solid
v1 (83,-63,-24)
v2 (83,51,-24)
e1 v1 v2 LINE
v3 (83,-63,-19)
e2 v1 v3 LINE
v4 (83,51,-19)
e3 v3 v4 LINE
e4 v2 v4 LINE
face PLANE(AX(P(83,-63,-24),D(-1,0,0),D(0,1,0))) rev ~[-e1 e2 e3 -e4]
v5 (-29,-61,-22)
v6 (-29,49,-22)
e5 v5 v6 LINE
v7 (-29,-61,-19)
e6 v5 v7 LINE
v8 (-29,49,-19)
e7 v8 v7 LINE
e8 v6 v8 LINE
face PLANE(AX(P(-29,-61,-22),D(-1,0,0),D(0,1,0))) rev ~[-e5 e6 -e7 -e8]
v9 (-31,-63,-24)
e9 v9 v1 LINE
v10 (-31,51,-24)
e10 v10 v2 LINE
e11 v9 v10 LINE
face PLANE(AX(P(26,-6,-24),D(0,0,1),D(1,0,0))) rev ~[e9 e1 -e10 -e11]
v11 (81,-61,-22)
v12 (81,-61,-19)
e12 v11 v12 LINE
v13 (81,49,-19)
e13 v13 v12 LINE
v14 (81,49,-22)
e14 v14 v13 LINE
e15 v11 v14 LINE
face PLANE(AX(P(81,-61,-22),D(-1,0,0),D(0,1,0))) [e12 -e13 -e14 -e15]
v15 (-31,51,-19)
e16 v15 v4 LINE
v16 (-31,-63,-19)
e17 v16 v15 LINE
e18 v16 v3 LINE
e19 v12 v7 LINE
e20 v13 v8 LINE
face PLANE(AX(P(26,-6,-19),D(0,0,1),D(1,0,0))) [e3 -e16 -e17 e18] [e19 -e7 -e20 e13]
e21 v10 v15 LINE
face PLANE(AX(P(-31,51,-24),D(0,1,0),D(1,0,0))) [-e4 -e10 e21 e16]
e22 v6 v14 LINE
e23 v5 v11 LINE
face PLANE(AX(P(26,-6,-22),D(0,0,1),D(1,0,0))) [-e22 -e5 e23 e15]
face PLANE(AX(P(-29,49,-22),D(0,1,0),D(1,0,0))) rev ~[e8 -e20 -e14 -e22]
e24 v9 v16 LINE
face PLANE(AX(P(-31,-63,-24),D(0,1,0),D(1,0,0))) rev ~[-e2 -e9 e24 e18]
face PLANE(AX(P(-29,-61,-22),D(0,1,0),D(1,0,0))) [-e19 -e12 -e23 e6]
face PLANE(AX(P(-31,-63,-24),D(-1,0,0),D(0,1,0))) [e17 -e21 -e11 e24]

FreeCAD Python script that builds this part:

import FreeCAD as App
import Part
import Sketcher

V = App.Vector
Q = App.Units.Quantity


def add_polygon(sketch, points):
    """Adds a closed chain of lines whose ends are joined by coincident constraints."""
    first, n = sketch.GeometryCount, len(points)
    for a, b in zip(points, points[1:] + points[:1]):
        sketch.addGeometry(Part.LineSegment(App.Vector(*a, 0), App.Vector(*b, 0)), False)
    for i in range(n):
        sketch.addConstraint(Sketcher.Constraint("Coincident", first + i, 2, first + (i + 1) % n, 1))

doc = App.newDocument("Part")
body = doc.addObject("PartDesign::Body", "Body")

sketch1 = body.newObject("Sketcher::SketchObject", "Sketch")
sketch1.AttachmentSupport = (doc.getObject("XY_Plane"), [""])
sketch1.MapMode = "FlatFace"
sketch1.AttachmentOffset = App.Placement(V(0, 0, -22), App.Rotation())
add_polygon(sketch1, [(-29, 49), (-29, -61), (81, -61), (81, 49)])
sketch1.addConstraint([
    Sketcher.Constraint("Vertical", 0),
    Sketcher.Constraint("Horizontal", 1),
    Sketcher.Constraint("Vertical", 2),
    Sketcher.Constraint("Horizontal", 3),
    Sketcher.Constraint("Equal", 3, 0),
    Sketcher.Constraint("DistanceX", 1, 1, 1, 2, Q("110 mm")),
    Sketcher.Constraint("DistanceX", 0, 2, -1, 1, Q("29 mm")),
    Sketcher.Constraint("DistanceY", 0, 2, -1, 1, Q("61 mm")),
])
pad1 = body.newObject("PartDesign::Pad", "Pad")
pad1.Profile = sketch1
pad1.Length = 5
body2 = doc.addObject("PartDesign::Body", "Body001")

sketch2 = body2.newObject("Sketcher::SketchObject", "Sketch001")
sketch2.AttachmentSupport = (doc.getObject("XY_Plane001"), [""])
sketch2.MapMode = "FlatFace"
sketch2.AttachmentOffset = App.Placement(V(0, 0, -24), App.Rotation())
add_polygon(sketch2, [(-31, 51), (-31, -63), (83, -63), (83, 51)])
sketch2.addConstraint([
    Sketcher.Constraint("Vertical", 0),
    Sketcher.Constraint("Horizontal", 1),
    Sketcher.Constraint("Vertical", 2),
    Sketcher.Constraint("Horizontal", 3),
    Sketcher.Constraint("Equal", 3, 0),
    Sketcher.Constraint("DistanceX", 1, 1, 1, 2, Q("114 mm")),
    Sketcher.Constraint("DistanceX", 0, 2, -1, 1, Q("31 mm")),
    Sketcher.Constraint("DistanceY", 0, 2, -1, 1, Q("63 mm")),
])
pad2 = body2.newObject("PartDesign::Pad", "Pad001")
pad2.Profile = sketch2
pad2.Length = 5
doc.recompute()

boolean = body2.newObject("PartDesign::Boolean", "Boolean")
boolean.Type = "Cut"
boolean.addObjects([body])

doc.recompute()
